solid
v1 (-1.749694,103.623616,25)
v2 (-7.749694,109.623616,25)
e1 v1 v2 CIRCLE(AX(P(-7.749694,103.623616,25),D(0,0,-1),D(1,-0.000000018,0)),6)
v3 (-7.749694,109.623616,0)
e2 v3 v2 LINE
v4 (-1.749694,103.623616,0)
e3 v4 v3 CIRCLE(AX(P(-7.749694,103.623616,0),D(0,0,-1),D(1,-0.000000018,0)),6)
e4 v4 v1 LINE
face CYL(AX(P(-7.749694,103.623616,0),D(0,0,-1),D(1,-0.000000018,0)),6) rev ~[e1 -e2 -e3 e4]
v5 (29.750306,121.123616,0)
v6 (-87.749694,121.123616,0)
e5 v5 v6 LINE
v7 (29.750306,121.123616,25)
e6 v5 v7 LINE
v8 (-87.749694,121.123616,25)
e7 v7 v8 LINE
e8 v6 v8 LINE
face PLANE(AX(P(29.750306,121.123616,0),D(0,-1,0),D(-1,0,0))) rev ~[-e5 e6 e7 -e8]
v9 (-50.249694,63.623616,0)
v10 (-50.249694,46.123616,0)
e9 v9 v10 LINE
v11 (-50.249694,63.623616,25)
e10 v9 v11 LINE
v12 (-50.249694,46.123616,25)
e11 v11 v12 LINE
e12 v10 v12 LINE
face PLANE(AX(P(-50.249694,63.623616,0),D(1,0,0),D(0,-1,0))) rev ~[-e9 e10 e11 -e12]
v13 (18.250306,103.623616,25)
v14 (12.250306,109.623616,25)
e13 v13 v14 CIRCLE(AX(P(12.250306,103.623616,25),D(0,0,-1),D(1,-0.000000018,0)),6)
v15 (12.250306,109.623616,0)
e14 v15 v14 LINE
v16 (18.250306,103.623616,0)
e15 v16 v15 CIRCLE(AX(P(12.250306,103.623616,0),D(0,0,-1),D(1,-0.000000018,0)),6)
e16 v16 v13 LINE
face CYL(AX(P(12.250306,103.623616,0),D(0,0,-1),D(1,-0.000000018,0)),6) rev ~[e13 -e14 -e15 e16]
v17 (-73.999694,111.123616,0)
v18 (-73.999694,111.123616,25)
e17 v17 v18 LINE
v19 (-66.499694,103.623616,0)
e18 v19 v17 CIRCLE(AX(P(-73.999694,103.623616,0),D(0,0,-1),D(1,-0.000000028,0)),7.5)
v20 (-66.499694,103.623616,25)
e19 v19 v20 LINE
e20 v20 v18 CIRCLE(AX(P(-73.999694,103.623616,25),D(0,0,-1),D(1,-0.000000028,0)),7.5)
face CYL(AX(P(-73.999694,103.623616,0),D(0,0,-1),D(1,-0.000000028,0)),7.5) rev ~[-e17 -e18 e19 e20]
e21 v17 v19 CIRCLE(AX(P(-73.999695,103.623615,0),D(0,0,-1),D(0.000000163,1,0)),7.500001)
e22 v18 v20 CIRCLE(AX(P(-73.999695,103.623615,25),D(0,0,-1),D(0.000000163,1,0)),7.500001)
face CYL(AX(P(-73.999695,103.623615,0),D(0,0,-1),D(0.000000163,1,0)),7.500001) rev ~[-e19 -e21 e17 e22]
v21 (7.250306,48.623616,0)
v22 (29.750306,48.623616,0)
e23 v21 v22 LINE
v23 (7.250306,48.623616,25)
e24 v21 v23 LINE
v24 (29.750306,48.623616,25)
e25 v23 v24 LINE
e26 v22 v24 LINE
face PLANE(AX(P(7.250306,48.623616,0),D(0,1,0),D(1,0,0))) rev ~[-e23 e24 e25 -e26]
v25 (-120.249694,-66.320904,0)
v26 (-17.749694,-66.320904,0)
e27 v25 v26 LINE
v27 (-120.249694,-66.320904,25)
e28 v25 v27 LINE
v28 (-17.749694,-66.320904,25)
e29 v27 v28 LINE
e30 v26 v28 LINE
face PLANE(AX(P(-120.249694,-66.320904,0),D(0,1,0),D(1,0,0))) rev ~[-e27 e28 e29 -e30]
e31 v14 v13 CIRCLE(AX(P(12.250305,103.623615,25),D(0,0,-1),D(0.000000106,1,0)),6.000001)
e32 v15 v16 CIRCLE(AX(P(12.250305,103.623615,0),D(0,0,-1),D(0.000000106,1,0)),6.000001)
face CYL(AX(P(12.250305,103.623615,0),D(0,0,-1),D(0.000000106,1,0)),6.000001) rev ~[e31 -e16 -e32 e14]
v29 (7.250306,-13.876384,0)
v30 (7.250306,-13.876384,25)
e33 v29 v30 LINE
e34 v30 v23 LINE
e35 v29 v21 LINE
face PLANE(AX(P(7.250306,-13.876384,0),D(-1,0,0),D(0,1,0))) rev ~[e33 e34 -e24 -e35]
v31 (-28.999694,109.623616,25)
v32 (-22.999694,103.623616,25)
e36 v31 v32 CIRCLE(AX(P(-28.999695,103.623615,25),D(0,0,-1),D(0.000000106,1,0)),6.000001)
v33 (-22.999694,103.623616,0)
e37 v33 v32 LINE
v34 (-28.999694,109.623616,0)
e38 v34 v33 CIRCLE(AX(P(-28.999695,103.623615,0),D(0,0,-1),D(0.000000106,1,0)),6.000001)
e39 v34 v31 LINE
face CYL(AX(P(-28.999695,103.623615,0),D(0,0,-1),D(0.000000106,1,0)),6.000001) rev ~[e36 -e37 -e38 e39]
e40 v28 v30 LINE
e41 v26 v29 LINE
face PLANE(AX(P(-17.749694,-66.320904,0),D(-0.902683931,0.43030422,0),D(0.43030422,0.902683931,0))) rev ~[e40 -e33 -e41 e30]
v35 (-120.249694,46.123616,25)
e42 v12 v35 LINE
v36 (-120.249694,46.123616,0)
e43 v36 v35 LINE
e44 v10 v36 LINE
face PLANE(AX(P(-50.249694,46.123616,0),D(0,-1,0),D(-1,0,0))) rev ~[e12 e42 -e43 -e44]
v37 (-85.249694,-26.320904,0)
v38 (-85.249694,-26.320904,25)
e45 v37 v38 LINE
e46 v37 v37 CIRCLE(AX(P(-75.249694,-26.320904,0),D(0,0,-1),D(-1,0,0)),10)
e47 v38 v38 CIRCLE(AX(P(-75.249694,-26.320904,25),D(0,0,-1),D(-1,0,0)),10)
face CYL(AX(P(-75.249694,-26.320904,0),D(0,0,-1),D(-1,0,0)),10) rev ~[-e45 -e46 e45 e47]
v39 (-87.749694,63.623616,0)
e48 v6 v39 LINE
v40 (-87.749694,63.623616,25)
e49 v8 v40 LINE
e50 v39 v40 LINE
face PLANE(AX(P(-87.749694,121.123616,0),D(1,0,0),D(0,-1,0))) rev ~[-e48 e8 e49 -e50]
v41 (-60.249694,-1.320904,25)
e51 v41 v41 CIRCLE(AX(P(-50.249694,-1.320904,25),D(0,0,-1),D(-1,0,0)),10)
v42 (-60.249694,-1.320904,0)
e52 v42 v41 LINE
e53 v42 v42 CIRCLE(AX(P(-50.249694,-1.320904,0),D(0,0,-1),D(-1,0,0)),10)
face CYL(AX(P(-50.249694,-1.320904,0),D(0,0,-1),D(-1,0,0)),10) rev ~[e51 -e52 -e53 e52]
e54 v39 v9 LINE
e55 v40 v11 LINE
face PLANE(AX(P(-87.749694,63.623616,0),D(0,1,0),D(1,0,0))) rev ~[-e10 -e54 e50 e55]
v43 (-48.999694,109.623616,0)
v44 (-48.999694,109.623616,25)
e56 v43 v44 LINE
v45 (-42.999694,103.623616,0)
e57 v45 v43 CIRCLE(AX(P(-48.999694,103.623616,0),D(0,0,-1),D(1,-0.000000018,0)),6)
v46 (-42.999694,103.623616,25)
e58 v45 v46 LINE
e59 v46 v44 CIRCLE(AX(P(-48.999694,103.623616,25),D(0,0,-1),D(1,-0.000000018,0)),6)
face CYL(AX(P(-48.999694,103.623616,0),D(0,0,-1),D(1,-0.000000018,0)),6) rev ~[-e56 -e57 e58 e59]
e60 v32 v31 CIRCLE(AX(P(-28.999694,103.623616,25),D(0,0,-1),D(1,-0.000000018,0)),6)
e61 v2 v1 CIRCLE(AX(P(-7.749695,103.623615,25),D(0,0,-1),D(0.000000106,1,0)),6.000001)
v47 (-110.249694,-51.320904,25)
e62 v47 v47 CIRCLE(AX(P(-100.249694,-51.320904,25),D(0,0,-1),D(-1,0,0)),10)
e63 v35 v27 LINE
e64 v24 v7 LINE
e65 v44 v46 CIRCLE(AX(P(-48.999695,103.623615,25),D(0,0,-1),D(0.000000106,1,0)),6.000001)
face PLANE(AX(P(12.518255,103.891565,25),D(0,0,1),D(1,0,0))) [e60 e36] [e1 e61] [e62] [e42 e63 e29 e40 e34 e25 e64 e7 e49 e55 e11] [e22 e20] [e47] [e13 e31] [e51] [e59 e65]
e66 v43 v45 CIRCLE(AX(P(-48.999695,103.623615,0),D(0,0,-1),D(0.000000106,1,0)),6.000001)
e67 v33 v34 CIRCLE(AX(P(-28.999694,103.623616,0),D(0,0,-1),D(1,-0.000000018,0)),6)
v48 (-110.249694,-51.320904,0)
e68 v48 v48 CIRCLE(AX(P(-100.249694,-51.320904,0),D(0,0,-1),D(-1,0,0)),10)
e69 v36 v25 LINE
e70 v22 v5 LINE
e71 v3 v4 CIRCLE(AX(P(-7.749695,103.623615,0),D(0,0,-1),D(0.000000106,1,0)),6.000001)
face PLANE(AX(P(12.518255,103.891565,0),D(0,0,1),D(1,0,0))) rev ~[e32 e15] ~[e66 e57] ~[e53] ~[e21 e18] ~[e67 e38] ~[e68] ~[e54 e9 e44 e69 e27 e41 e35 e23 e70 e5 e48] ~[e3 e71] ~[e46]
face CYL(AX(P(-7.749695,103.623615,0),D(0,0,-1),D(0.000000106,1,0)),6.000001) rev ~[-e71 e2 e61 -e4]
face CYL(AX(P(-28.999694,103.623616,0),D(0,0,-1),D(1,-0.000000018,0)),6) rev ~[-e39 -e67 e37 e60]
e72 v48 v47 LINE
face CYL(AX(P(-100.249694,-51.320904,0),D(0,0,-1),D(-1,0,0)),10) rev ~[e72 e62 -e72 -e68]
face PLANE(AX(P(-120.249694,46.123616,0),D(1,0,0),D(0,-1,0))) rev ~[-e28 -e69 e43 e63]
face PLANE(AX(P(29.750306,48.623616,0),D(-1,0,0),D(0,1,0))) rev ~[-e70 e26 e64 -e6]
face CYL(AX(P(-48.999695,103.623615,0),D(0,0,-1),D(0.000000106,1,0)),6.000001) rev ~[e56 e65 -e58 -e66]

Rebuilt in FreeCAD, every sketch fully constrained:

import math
import FreeCAD as App
import Part
import Sketcher

V = App.Vector


def add_polygon(sketch, points):
    """Adds a closed chain of lines whose ends are joined by coincident constraints."""
    first, n = sketch.GeometryCount, len(points)
    for a, b in zip(points, points[1:] + points[:1]):
        sketch.addGeometry(Part.LineSegment(App.Vector(*a, 0), App.Vector(*b, 0)), False)
    for i in range(n):
        sketch.addConstraint(Sketcher.Constraint("Coincident", first + i, 2, first + (i + 1) % n, 1))

doc = App.newDocument("Part")
body = doc.addObject("PartDesign::Body", "Body")

sketch1 = body.newObject("Sketcher::SketchObject", "Sketch")
sketch1.AttachmentSupport = (doc.getObject("XY_Plane"), [""])
sketch1.MapMode = "FlatFace"
add_polygon(sketch1, [(-120.249694, -66.320904), (-17.749694, -66.320904), (7.250306, -13.876384), (7.250306, 48.623616), (29.750306, 48.623616), (29.750306, 121.123616), (-87.749694, 121.123616), (-87.749694, 63.623616), (-50.249694, 63.623616), (-50.249694, 46.123616), (-120.249694, 46.123616)])
sketch1.addGeometry(Part.Circle(V(-100.249694, -51.320904, 0), V(0, 0, 1), 10), False)
sketch1.addGeometry(Part.Circle(V(-75.249694, -26.320904, 0), V(0, 0, 1), 10), False)
sketch1.addGeometry(Part.Circle(V(-50.249694, -1.320904, 0), V(0, 0, 1), 10), False)
sketch1.addGeometry(Part.ArcOfCircle(Part.Circle(V(-73.999695, 103.623615, 0), V(0, 0, 1), 7.500001), math.radians(0.000009), math.radians(89.999991)), False)
sketch1.addGeometry(Part.ArcOfCircle(Part.Circle(V(-73.999694, 103.623616, 0), V(0, 0, 1), 7.5), math.radians(90.000002), math.radians(359.999998)), False)
sketch1.addGeometry(Part.ArcOfCircle(Part.Circle(V(-48.999695, 103.623615, 0), V(0, 0, 1), 6.000001), math.radians(0.000006), math.radians(89.999994)), False)
sketch1.addGeometry(Part.ArcOfCircle(Part.Circle(V(-48.999694, 103.623616, 0), V(0, 0, 1), 6), math.radians(90.000001), math.radians(359.999999)), False)
sketch1.addGeometry(Part.ArcOfCircle(Part.Circle(V(-28.999695, 103.623615, 0), V(0, 0, 1), 6.000001), math.radians(0.000006), math.radians(89.999994)), False)
sketch1.addGeometry(Part.ArcOfCircle(Part.Circle(V(-28.999694, 103.623616, 0), V(0, 0, 1), 6), math.radians(90.000001), math.radians(359.999999)), False)
sketch1.addGeometry(Part.ArcOfCircle(Part.Circle(V(-7.749695, 103.623615, 0), V(0, 0, 1), 6.000001), math.radians(0.000006), math.radians(89.999994)), False)
sketch1.addGeometry(Part.ArcOfCircle(Part.Circle(V(-7.749694, 103.623616, 0), V(0, 0, 1), 6), math.radians(90.000001), math.radians(359.999999)), False)
sketch1.addGeometry(Part.ArcOfCircle(Part.Circle(V(12.250305, 103.623615, 0), V(0, 0, 1), 6.000001), math.radians(0.000006), math.radians(89.999994)), False)
sketch1.addGeometry(Part.ArcOfCircle(Part.Circle(V(12.250306, 103.623616, 0), V(0, 0, 1), 6), math.radians(90.000001), math.radians(359.999999)), False)
sketch1.addConstraint([
    Sketcher.Constraint("Tangent", 14, 1, 15, 2),
    Sketcher.Constraint("Coincident", 15, 1, 14, 2),
    Sketcher.Constraint("Tangent", 16, 1, 17, 2),
    Sketcher.Constraint("Coincident", 17, 1, 16, 2),
    Sketcher.Constraint("Tangent", 18, 1, 19, 2),
    Sketcher.Constraint("Coincident", 19, 1, 18, 2),
    Sketcher.Constraint("Tangent", 20, 1, 21, 2),
    Sketcher.Constraint("Coincident", 21, 1, 20, 2),
    Sketcher.Constraint("Tangent", 22, 1, 23, 2),
    Sketcher.Constraint("Coincident", 23, 1, 22, 2),
    Sketcher.Constraint("Horizontal", 0),
    Sketcher.Constraint("Vertical", 2),
    Sketcher.Constraint("Horizontal", 3),
    Sketcher.Constraint("Vertical", 4),
    Sketcher.Constraint("Horizontal", 5),
    Sketcher.Constraint("Vertical", 6),
    Sketcher.Constraint("Horizontal", 7),
    Sketcher.Constraint("Vertical", 8),
    Sketcher.Constraint("Horizontal", 9),
    Sketcher.Constraint("Vertical", 10),
    Sketcher.Constraint("Equal", 11, 12),
    Sketcher.Constraint("Equal", 12, 13),
    Sketcher.Constraint("Equal", 17, 18),
    Sketcher.Constraint("Equal", 19, 20),
    Sketcher.Constraint("Equal", 21, 22),
    Sketcher.Constraint("Horizontal", 15, 3, 16, 3),
    Sketcher.Constraint("Horizontal", 17, 3, 18, 3),
    Sketcher.Constraint("Horizontal", 19, 3, 20, 3),
    Sketcher.Constraint("Horizontal", 21, 3, 22, 3),
    Sketcher.Constraint("Horizontal", 23, 3, 14, 1),
    Sketcher.Constraint("Horizontal", 14, 1, 16, 1),
    Sketcher.Constraint("Horizontal", 16, 1, 18, 1),
    Sketcher.Constraint("Horizontal", 18, 1, 20, 1),
    Sketcher.Constraint("Horizontal", 20, 1, 22, 1),
    Sketcher.Constraint("Vertical", 13, 3, 7, 2),
    Sketcher.Constraint("Vertical", 14, 3, 15, 1),
    Sketcher.Constraint("Vertical", 16, 3, 17, 1),
    Sketcher.Constraint("Vertical", 18, 3, 19, 1),
    Sketcher.Constraint("Vertical", 20, 3, 21, 1),
    Sketcher.Constraint("Vertical", 22, 3, 23, 1),
    Sketcher.Constraint("Diameter", 11, 20.0),
    Sketcher.Constraint("Radius", 16, 6.000001),
    Sketcher.Constraint("Radius", 14, 7.500001),
    Sketcher.Constraint("DistanceX", 9, 2, 9, 1, 70.0),
    Sketcher.Constraint("DistanceX", 0, 1, 0, 2, 102.5),
    Sketcher.Constraint("DistanceX", 3, 1, 3, 2, 22.5),
    Sketcher.Constraint("DistanceX", 5, 2, 5, 1, 117.5),
    Sketcher.Constraint("DistanceX", 7, 1, 7, 2, 37.5),
    Sketcher.Constraint("DistanceY", 2, 1, 2, 2, 62.5),
    Sketcher.Constraint("DistanceY", 4, 1, 4, 2, 72.5),
    Sketcher.Constraint("DistanceY", 6, 2, 6, 1, 57.5),
    Sketcher.Constraint("DistanceY", 8, 2, 8, 1, 17.5),
    Sketcher.Constraint("DistanceX", 11, 3, 12, 3, 25.0),
    Sketcher.Constraint("DistanceY", 11, 3, 12, 3, 25.0),
    Sketcher.Constraint("DistanceX", 12, 3, 13, 3, 25.0),
    Sketcher.Constraint("DistanceY", 12, 3, 13, 3, 25.0),
    Sketcher.Constraint("DistanceX", 15, 3, 16, 3, 24.999999),
    Sketcher.Constraint("DistanceX", 17, 3, 18, 3, 19.999999),
    Sketcher.Constraint("DistanceX", 21, 3, 22, 3, 19.999999),
    Sketcher.Constraint("DistanceY", 0, 2, 12, 3, 40.0),
    Sketcher.Constraint("DistanceX", 0, 2, 20, 3, 9.999999),
    Sketcher.Constraint("DistanceY", 2, 2, 22, 3, 54.999999),
    Sketcher.Constraint("DistanceX", 14, 3, 13, 3, 23.750001),
    Sketcher.Constraint("DistanceY", 10, 2, 10, 1, 112.44452),
    Sketcher.Constraint("DistanceX", 11, 3, -1, 1, 100.249694),
    Sketcher.Constraint("DistanceY", 11, 3, -1, 1, 51.320904),
])
pad1 = body.newObject("PartDesign::Pad", "Pad")
pad1.Profile = sketch1
pad1.Length = 25

doc.recompute()
